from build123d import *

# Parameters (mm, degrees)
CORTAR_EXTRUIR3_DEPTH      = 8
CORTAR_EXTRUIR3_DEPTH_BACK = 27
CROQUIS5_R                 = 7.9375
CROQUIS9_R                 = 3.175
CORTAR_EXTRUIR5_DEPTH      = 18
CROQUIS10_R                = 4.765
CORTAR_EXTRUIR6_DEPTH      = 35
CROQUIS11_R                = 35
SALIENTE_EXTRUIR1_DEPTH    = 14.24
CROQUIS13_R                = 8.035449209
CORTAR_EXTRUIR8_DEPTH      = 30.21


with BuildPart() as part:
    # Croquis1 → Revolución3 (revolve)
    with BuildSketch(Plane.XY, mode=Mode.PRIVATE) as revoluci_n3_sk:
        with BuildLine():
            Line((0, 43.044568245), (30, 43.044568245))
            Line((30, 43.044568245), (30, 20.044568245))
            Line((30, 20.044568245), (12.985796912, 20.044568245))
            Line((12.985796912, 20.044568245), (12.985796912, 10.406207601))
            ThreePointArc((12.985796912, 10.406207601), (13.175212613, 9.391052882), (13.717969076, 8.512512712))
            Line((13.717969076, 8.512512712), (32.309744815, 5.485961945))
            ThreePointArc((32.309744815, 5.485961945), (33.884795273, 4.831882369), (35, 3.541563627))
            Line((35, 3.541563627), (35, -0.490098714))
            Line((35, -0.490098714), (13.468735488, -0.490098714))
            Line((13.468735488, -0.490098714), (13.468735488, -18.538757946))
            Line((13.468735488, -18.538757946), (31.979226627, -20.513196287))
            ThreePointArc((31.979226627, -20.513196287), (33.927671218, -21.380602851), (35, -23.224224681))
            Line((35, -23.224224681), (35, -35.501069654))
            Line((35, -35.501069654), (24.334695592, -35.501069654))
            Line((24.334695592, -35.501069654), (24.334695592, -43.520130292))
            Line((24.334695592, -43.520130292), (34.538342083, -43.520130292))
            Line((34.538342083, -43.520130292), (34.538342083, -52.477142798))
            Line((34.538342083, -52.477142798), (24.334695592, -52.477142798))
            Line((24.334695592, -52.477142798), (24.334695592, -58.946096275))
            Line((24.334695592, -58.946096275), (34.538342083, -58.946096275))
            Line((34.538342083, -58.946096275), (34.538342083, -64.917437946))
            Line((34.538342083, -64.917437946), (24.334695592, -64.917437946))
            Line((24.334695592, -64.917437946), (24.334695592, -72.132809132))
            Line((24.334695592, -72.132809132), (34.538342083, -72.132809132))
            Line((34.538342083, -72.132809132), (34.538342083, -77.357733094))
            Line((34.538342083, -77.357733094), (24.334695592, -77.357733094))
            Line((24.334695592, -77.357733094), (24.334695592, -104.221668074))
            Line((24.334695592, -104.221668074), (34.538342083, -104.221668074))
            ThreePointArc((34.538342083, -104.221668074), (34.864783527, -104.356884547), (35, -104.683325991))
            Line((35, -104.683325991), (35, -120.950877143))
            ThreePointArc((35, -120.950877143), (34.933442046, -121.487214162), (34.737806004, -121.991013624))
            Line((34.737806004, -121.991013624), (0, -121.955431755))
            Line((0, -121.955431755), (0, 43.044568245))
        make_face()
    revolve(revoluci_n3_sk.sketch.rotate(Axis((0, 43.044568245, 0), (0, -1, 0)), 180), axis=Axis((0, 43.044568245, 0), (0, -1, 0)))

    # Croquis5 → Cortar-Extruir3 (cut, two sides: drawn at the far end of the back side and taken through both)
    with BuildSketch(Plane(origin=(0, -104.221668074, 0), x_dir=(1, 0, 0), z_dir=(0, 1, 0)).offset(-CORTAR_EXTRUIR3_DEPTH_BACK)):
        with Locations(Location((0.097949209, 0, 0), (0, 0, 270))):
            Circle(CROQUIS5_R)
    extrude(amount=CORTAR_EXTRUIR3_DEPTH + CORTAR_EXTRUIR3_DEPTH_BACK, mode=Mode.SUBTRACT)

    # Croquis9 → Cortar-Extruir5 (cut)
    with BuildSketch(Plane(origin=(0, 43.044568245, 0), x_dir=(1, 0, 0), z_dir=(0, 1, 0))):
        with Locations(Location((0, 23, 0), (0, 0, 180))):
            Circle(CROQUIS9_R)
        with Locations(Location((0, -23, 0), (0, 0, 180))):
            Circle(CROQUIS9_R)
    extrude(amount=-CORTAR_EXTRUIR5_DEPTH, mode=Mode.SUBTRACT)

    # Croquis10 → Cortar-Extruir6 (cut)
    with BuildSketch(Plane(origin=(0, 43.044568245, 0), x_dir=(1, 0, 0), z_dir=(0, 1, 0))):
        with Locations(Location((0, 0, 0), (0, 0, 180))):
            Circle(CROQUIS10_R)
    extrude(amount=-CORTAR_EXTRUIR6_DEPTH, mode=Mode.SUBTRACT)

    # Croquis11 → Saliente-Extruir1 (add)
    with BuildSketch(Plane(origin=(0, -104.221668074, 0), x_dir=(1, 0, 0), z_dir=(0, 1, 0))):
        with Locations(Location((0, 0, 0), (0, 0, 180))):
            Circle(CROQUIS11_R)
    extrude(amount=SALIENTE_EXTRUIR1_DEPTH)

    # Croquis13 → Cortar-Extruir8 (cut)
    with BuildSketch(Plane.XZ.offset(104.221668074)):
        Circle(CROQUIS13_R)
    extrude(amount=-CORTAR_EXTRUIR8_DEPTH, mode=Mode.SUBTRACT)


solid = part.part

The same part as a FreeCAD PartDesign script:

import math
import FreeCAD as App
import Part
import Sketcher
Q = App.Units.Quantity

doc = App.newDocument("Part")
body = doc.addObject("PartDesign::Body", "Body")

# Sketch on XY plane
sketch1 = body.newObject("Sketcher::SketchObject", "Sketch")
sketch1.AttachmentSupport = (doc.getObject("XY_Plane"), [""])
sketch1.MapMode = "FlatFace"
sketch1.addGeometry([
    Part.LineSegment(App.Vector(30, 43.04, 0), App.Vector(0, 43.04, 0)),  # 0
    Part.LineSegment(App.Vector(0, 43.04, 0), App.Vector(0, -121.96, 0)),  # 1
    Part.LineSegment(App.Vector(0, -121.96, 0), App.Vector(34.74, -121.99, 0)),  # 2
    Part.ArcOfCircle(Part.Circle(App.Vector(32.81, -120.95, 0), App.Vector(0, 0, 1), 2.19), math.radians(-28), math.radians(0)),  # 3
    Part.LineSegment(App.Vector(35, -120.95, 0), App.Vector(35, -104.68, 0)),  # 4
    Part.ArcOfCircle(Part.Circle(App.Vector(34.54, -104.68, 0), App.Vector(0, 0, 1), 0.46), math.radians(0), math.radians(90)),  # 5
    Part.LineSegment(App.Vector(34.54, -104.22, 0), App.Vector(24.33, -104.22, 0)),  # 6
    Part.LineSegment(App.Vector(24.33, -104.22, 0), App.Vector(24.33, -77.36, 0)),  # 7
    Part.LineSegment(App.Vector(24.33, -77.36, 0), App.Vector(34.54, -77.36, 0)),  # 8
    Part.LineSegment(App.Vector(34.54, -77.36, 0), App.Vector(34.54, -72.13, 0)),  # 9
    Part.LineSegment(App.Vector(34.54, -72.13, 0), App.Vector(24.33, -72.13, 0)),  # 10
    Part.LineSegment(App.Vector(24.33, -72.13, 0), App.Vector(24.33, -64.92, 0)),  # 11
    Part.LineSegment(App.Vector(24.33, -64.92, 0), App.Vector(34.54, -64.92, 0)),  # 12
    Part.LineSegment(App.Vector(34.54, -64.92, 0), App.Vector(34.54, -58.95, 0)),  # 13
    Part.LineSegment(App.Vector(34.54, -58.95, 0), App.Vector(24.33, -58.95, 0)),  # 14
    Part.LineSegment(App.Vector(24.33, -58.95, 0), App.Vector(24.33, -52.48, 0)),  # 15
    Part.LineSegment(App.Vector(24.33, -52.48, 0), App.Vector(34.54, -52.48, 0)),  # 16
    Part.LineSegment(App.Vector(34.54, -52.48, 0), App.Vector(34.54, -43.52, 0)),  # 17
    Part.LineSegment(App.Vector(34.54, -43.52, 0), App.Vector(24.33, -43.52, 0)),  # 18
    Part.LineSegment(App.Vector(24.33, -43.52, 0), App.Vector(24.33, -35.5, 0)),  # 19
    Part.LineSegment(App.Vector(24.33, -35.5, 0), App.Vector(35, -35.5, 0)),  # 20
    Part.LineSegment(App.Vector(35, -35.5, 0), App.Vector(35, -23.22, 0)),  # 21
    Part.ArcOfCircle(Part.Circle(App.Vector(31.61, -23.96, 0), App.Vector(0, 0, 1), 3.47), math.radians(12), math.radians(84)),  # 22
    Part.LineSegment(App.Vector(31.98, -20.51, 0), App.Vector(13.47, -18.54, 0)),  # 23
    Part.LineSegment(App.Vector(13.47, -18.54, 0), App.Vector(13.47, -0.49, 0)),  # 24
    Part.LineSegment(App.Vector(13.47, -0.49, 0), App.Vector(35, -0.49, 0)),  # 25
    Part.LineSegment(App.Vector(35, -0.49, 0), App.Vector(35, 3.54, 0)),  # 26
    Part.ArcOfCircle(Part.Circle(App.Vector(31.71, 1.83, 0), App.Vector(0, 0, 1), 3.71), math.radians(28), math.radians(81)),  # 27
    Part.LineSegment(App.Vector(32.31, 5.49, 0), App.Vector(13.72, 8.51, 0)),  # 28
    Part.ArcOfCircle(Part.Circle(App.Vector(15.8, 10.41, 0), App.Vector(0, 0, 1), 2.82), math.radians(-180), math.radians(-138)),  # 29
    Part.LineSegment(App.Vector(12.99, 10.41, 0), App.Vector(12.99, 20.04, 0)),  # 30
    Part.LineSegment(App.Vector(12.99, 20.04, 0), App.Vector(30, 20.04, 0)),  # 31
    Part.LineSegment(App.Vector(30, 20.04, 0), App.Vector(30, 43.04, 0)),  # 32
], False)
sketch1.addConstraint([
    Sketcher.Constraint("Coincident", 0, 2, 1, 1),
    Sketcher.Constraint("Coincident", 1, 2, 2, 1),
    Sketcher.Constraint("Coincident", 2, 2, 3, 1),
    Sketcher.Constraint("Tangent", 3, 2, 4, 1),
    Sketcher.Constraint("Tangent", 4, 2, 5, 1),
    Sketcher.Constraint("Tangent", 5, 2, 6, 1),
    Sketcher.Constraint("Coincident", 6, 2, 7, 1),
    Sketcher.Constraint("Coincident", 7, 2, 8, 1),
    Sketcher.Constraint("Coincident", 8, 2, 9, 1),
    Sketcher.Constraint("Coincident", 9, 2, 10, 1),
    Sketcher.Constraint("Coincident", 10, 2, 11, 1),
    Sketcher.Constraint("Coincident", 11, 2, 12, 1),
    Sketcher.Constraint("Coincident", 12, 2, 13, 1),
    Sketcher.Constraint("Coincident", 13, 2, 14, 1),
    Sketcher.Constraint("Coincident", 14, 2, 15, 1),
    Sketcher.Constraint("Coincident", 15, 2, 16, 1),
    Sketcher.Constraint("Coincident", 16, 2, 17, 1),
    Sketcher.Constraint("Coincident", 17, 2, 18, 1),
    Sketcher.Constraint("Coincident", 18, 2, 19, 1),
    Sketcher.Constraint("Coincident", 19, 2, 20, 1),
    Sketcher.Constraint("Coincident", 20, 2, 21, 1),
    Sketcher.Constraint("Coincident", 21, 2, 22, 1),
    Sketcher.Constraint("Tangent", 22, 2, 23, 1),
    Sketcher.Constraint("Coincident", 23, 2, 24, 1),
    Sketcher.Constraint("Coincident", 24, 2, 25, 1),
    Sketcher.Constraint("Coincident", 25, 2, 26, 1),
    Sketcher.Constraint("Coincident", 26, 2, 27, 1),
    Sketcher.Constraint("Tangent", 27, 2, 28, 1),
    Sketcher.Constraint("Coincident", 28, 2, 29, 2),
    Sketcher.Constraint("Tangent", 29, 1, 30, 1),
    Sketcher.Constraint("Coincident", 30, 2, 31, 1),
    Sketcher.Constraint("Coincident", 31, 2, 32, 1),
    Sketcher.Constraint("Coincident", 32, 2, 0, 1),
    Sketcher.Constraint("Horizontal", 0),
    Sketcher.Constraint("Vertical", 1),
    Sketcher.Constraint("Vertical", 4),
    Sketcher.Constraint("Horizontal", 6),
    Sketcher.Constraint("Vertical", 7),
    Sketcher.Constraint("Horizontal", 8),
    Sketcher.Constraint("Vertical", 9),
    Sketcher.Constraint("Horizontal", 10),
    Sketcher.Constraint("Vertical", 11),
    Sketcher.Constraint("Horizontal", 12),
    Sketcher.Constraint("Vertical", 13),
    Sketcher.Constraint("Horizontal", 14),
    Sketcher.Constraint("Vertical", 15),
    Sketcher.Constraint("Horizontal", 16),
    Sketcher.Constraint("Vertical", 17),
    Sketcher.Constraint("Horizontal", 18),
    Sketcher.Constraint("Vertical", 19),
    Sketcher.Constraint("Horizontal", 20),
    Sketcher.Constraint("Vertical", 21),
    Sketcher.Constraint("Vertical", 24),
    Sketcher.Constraint("Horizontal", 25),
    Sketcher.Constraint("Vertical", 26),
    Sketcher.Constraint("Vertical", 30),
    Sketcher.Constraint("Horizontal", 31),
    Sketcher.Constraint("Vertical", 32),
    Sketcher.Constraint("PointOnObject", 0, 2, -2),
    Sketcher.Constraint("Vertical", 5, 2, 8, 2),
    Sketcher.Constraint("Vertical", 7, 2, 10, 2),
    Sketcher.Constraint("Vertical", 9, 2, 12, 2),
    Sketcher.Constraint("Vertical", 11, 2, 14, 2),
    Sketcher.Constraint("Vertical", 13, 2, 16, 2),
    Sketcher.Constraint("Vertical", 15, 2, 18, 2),
    Sketcher.Constraint("Vertical", 4, 2, 20, 2),
    Sketcher.Constraint("Vertical", 21, 2, 25, 2),
    Sketcher.Constraint("DistanceX", 0, 2, 0, 1, Q("30 mm")),
    Sketcher.Constraint("DistanceY", 1, 2, 1, 1, Q("165 mm")),
    Sketcher.Constraint("DistanceY", 32, 1, 32, 2, Q("23 mm")),
    Sketcher.Constraint("DistanceX", -1, 1, 3, 2, Q("35 mm")),
    Sketcher.Constraint("Radius", 22, Q("3.467871 mm")),
    Sketcher.Constraint("Radius", 29, Q("2.815019 mm")),
    Sketcher.Constraint("Radius", 3, Q("2.194233 mm")),
    Sketcher.Constraint("Radius", 5, Q("0.461658 mm")),
    Sketcher.Constraint("Radius", 27, Q("3.705128 mm")),
    Sketcher.Constraint("DistanceY", 4, 1, 4, 2, Q("16.267551 mm")),
    Sketcher.Constraint("DistanceY", 11, 1, 11, 2, Q("7.215371 mm")),
    Sketcher.Constraint("DistanceY", 13, 1, 13, 2, Q("5.971342 mm")),
    Sketcher.Constraint("DistanceY", 19, 1, 19, 2, Q("8.019061 mm")),
    Sketcher.Constraint("DistanceY", 24, 1, 24, 2, Q("18.048659 mm")),
    Sketcher.Constraint("DistanceY", 30, 1, 30, 2, Q("9.638361 mm")),
    Sketcher.Constraint("DistanceY", 24, 2, -1, 1, Q("0.490099 mm")),
    Sketcher.Constraint("DistanceY", 5, 3, 27, 3, Q("106.512299 mm")),
    Sketcher.Constraint("DistanceY", 26, 2, 27, 2, Q("1.944398 mm")),
    Sketcher.Constraint("Distance", 28, Q("18.836511 mm")),
    Sketcher.Constraint("DistanceX", 6, 2, 6, 1, Q("10.203646 mm")),
    Sketcher.Constraint("DistanceX", 25, 1, 25, 2, Q("21.531265 mm")),
    Sketcher.Constraint("DistanceX", 31, 1, 31, 2, Q("17.014203 mm")),
    Sketcher.Constraint("DistanceY", 7, 1, 7, 2, Q("26.863935 mm")),
    Sketcher.Constraint("DistanceY", 9, 1, 9, 2, Q("5.224924 mm")),
    Sketcher.Constraint("DistanceY", 15, 1, 15, 2, Q("6.468953 mm")),
    Sketcher.Constraint("DistanceY", 17, 1, 17, 2, Q("8.957013 mm")),
    Sketcher.Constraint("DistanceY", 21, 1, 21, 2, Q("12.276845 mm")),
    Sketcher.Constraint("DistanceY", 26, 1, 26, 2, Q("4.031662 mm")),
    Sketcher.Constraint("DistanceX", -1, 1, 22, 3, Q("31.61141 mm")),
    Sketcher.Constraint("DistanceY", -1, 1, 0, 2, Q("43.044568 mm")),
    Sketcher.Constraint("DistanceX", 3, 3, 2, 2, Q("1.932039 mm")),
])
revolution = body.newObject("PartDesign::Revolution", "Revolution")
revolution.Profile = sketch1
revolution.ReferenceAxis = (sketch1, ["V_Axis"])
revolution.Angle = 360

# Sketch on XZ plane
sketch2 = body.newObject("Sketcher::SketchObject", "Sketch001")
sketch2.AttachmentSupport = (doc.getObject("XZ_Plane"), [""])
sketch2.MapMode = "FlatFace"
sketch2.AttachmentOffset = App.Placement(App.Vector(0, 0, 104.221668), App.Rotation())
sketch2.addGeometry(Part.Circle(App.Vector(0, 0, 0), App.Vector(0, 0, 1), 8), False)
sketch2.addConstraint([
    Sketcher.Constraint("PointOnObject", 0, 3, -1),
    Sketcher.Constraint("Diameter", 0, Q("15.875 mm")),
    Sketcher.Constraint("DistanceX", -1, 1, 0, 3, Q("0.097949 mm")),
])
pocket1 = body.newObject("PartDesign::Pocket", "Pocket")
pocket1.Profile = sketch2
pocket1.Type = "TwoLengths"
pocket1.Length = 8
pocket1.Length2 = 27

# Sketch on XZ plane
sketch3 = body.newObject("Sketcher::SketchObject", "Sketch002")
sketch3.AttachmentSupport = (doc.getObject("XZ_Plane"), [""])
sketch3.MapMode = "FlatFace"
sketch3.AttachmentOffset = App.Placement(App.Vector(0, 0, -43.044568), App.Rotation())
sketch3.addGeometry([
    Part.Circle(App.Vector(0, -23, 0), App.Vector(0, 0, 1), 3.2),
    Part.Circle(App.Vector(0, 23, 0), App.Vector(0, 0, 1), 3.2),
], False)
sketch3.addConstraint([
    Sketcher.Constraint("Equal", 0, 1),
    Sketcher.Constraint("Symmetric", 0, 3, 1, 3, -1, 1),
    Sketcher.Constraint("PointOnObject", 0, 3, -2),
    Sketcher.Constraint("Diameter", 0, Q("6.35 mm")),
    Sketcher.Constraint("DistanceY", 0, 3, -1, 1, Q("23 mm")),
])
pocket2 = body.newObject("PartDesign::Pocket", "Pocket001")
pocket2.Profile = sketch3
pocket2.Length = 18
pocket2.Reversed = True

# Sketch on XZ plane
sketch4 = body.newObject("Sketcher::SketchObject", "Sketch003")
sketch4.AttachmentSupport = (doc.getObject("XZ_Plane"), [""])
sketch4.MapMode = "FlatFace"
sketch4.AttachmentOffset = App.Placement(App.Vector(0, 0, -43.044568), App.Rotation())
sketch4.addGeometry(Part.Circle(App.Vector(0, 0, 0), App.Vector(0, 0, 1), 4.8), False)
sketch4.addConstraint([
    Sketcher.Constraint("Coincident", 0, 3, -1, 1),
    Sketcher.Constraint("Diameter", 0, Q("9.53 mm")),
])
pocket3 = body.newObject("PartDesign::Pocket", "Pocket002")
pocket3.Profile = sketch4
pocket3.Length = 35
pocket3.Reversed = True

# Sketch on XZ plane
sketch5 = body.newObject("Sketcher::SketchObject", "Sketch004")
sketch5.AttachmentSupport = (doc.getObject("XZ_Plane"), [""])
sketch5.MapMode = "FlatFace"
sketch5.AttachmentOffset = App.Placement(App.Vector(0, 0, 104.221668), App.Rotation())
sketch5.addGeometry(Part.Circle(App.Vector(0, 0, 0), App.Vector(0, 0, 1), 35), False)
sketch5.addConstraint([
    Sketcher.Constraint("Coincident", 0, 3, -1, 1),
    Sketcher.Constraint("Diameter", 0, Q("70 mm")),
])
pad1 = body.newObject("PartDesign::Pad", "Pad")
pad1.Profile = sketch5
pad1.Length = 14.24
pad1.Reversed = True

# Sketch on XZ plane
sketch6 = body.newObject("Sketcher::SketchObject", "Sketch005")
sketch6.AttachmentSupport = (doc.getObject("XZ_Plane"), [""])
sketch6.MapMode = "FlatFace"
sketch6.AttachmentOffset = App.Placement(App.Vector(0, 0, 104.221668), App.Rotation())
sketch6.addGeometry(Part.Circle(App.Vector(0, 0, 0), App.Vector(0, 0, 1), 8), False)
sketch6.addConstraint([
    Sketcher.Constraint("Coincident", 0, 3, -1, 1),
    Sketcher.Constraint("Diameter", 0, Q("16.070898 mm")),
])
pocket4 = body.newObject("PartDesign::Pocket", "Pocket003")
pocket4.Profile = sketch6
pocket4.Length = 30.21

doc.recompute()
